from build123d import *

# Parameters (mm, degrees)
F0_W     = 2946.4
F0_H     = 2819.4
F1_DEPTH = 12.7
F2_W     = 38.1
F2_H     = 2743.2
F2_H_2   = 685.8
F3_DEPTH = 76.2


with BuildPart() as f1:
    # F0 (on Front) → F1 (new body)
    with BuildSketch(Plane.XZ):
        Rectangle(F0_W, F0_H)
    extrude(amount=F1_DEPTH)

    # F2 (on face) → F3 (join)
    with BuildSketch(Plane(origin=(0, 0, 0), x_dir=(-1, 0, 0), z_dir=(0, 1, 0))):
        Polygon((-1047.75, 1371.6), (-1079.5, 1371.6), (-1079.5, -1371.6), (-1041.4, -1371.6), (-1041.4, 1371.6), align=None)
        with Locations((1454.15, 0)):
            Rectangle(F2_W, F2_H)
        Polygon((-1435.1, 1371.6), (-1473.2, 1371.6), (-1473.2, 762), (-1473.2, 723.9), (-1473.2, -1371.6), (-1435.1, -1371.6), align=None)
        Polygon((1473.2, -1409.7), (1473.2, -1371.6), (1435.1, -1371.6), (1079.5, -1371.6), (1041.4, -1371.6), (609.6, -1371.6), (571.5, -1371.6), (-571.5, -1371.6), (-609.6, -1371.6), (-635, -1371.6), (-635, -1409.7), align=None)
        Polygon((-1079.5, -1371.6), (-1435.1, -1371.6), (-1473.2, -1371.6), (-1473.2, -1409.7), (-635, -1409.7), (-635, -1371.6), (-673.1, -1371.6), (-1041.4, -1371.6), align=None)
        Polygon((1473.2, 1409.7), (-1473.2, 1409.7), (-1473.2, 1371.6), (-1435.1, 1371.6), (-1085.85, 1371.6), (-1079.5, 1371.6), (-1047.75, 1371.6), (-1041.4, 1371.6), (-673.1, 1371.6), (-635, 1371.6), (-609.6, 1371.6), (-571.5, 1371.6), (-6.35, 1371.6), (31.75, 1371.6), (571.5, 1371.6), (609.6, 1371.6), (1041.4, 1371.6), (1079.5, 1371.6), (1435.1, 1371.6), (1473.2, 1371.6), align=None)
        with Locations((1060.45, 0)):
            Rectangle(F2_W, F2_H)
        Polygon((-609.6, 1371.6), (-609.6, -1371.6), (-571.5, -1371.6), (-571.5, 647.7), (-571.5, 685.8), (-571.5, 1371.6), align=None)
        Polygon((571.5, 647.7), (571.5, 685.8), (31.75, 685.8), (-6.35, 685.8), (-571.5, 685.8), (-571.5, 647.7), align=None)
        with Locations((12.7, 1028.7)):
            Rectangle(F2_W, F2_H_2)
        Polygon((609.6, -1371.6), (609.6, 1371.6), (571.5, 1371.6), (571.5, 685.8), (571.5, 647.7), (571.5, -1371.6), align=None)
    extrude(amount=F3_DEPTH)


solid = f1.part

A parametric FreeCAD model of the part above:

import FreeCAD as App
import Part
import Sketcher
from FreeCAD import Vector
Q = App.Units.Quantity


def add_polygon(sketch, points):
    """Adds a closed chain of lines whose ends are joined by coincident constraints."""
    first, n = sketch.GeometryCount, len(points)
    for a, b in zip(points, points[1:] + points[:1]):
        sketch.addGeometry(Part.LineSegment(App.Vector(*a, 0), App.Vector(*b, 0)), False)
    for i in range(n):
        sketch.addConstraint(Sketcher.Constraint("Coincident", first + i, 2, first + (i + 1) % n, 1))

doc = App.newDocument("Part")
params = doc.addObject("Spreadsheet::Sheet", "Params")
for row, (alias, value) in enumerate([
    ("sketch1_width", "116 in"),
    ("sketch1_height", "111 in"),
    ("pad1_length", "0.5 in"),
    ("sketch2_width", "116 in"),
    ("sketch2_width2", "14 in"),
    ("sketch2_width3", "17 in"),
    ("sketch2_width4", "45 in"),
    ("sketch2_height", "111 in"),
    ("pad2_length", "3 in"),
], start=1):
    params.set(f"A{row}", alias)
    params.set(f"B{row}", "=" + value)
    params.setAlias(f"B{row}", alias)

body = doc.addObject("PartDesign::Body", "Body")

sketch1 = body.newObject("Sketcher::SketchObject", "Sketch")
sketch1.AttachmentSupport = (doc.getObject("XZ_Plane"), [""])
sketch1.MapMode = "FlatFace"
add_polygon(sketch1, [(-1473.2, 1409.7), (-1473.2, -1409.7), (1473.2, -1409.7), (1473.2, 1409.7)])
sketch1.addConstraint([
    Sketcher.Constraint("Vertical", 0),
    Sketcher.Constraint("Horizontal", 1),
    Sketcher.Constraint("Vertical", 2),
    Sketcher.Constraint("Horizontal", 3),
    Sketcher.Constraint("Symmetric", 0, 2, 2, 2, -1, 1),
    Sketcher.Constraint("DistanceX", 1, 1, 1, 2, Q("116 in")),
    Sketcher.Constraint("DistanceY", 0, 2, 0, 1, Q("111 in")),
])
sketch1.setExpression("Constraints[9]", "Params.sketch1_width")
sketch1.setExpression("Constraints[10]", "Params.sketch1_height")
pad1 = body.newObject("PartDesign::Pad", "Pad")
pad1.Profile = sketch1
pad1.setExpression("Length", "Params.pad1_length")

sketch2 = body.newObject("Sketcher::SketchObject", "Sketch001")
sketch2.AttachmentSupport = (doc.getObject("XZ_Plane"), [""])
sketch2.MapMode = "FlatFace"
add_polygon(sketch2, [(1473.2, -1409.7), (-1473.2, -1409.7), (-1473.2, 1409.7), (1473.2, 1409.7)])
add_polygon(sketch2, [(1079.5, 1371.6), (1079.5, -1371.6), (1435.1, -1371.6), (1435.1, 1371.6)])
add_polygon(sketch2, [(-1435.1, 1371.6), (-1435.1, -1371.6), (-1079.5, -1371.6), (-1079.5, 1371.6)])
add_polygon(sketch2, [(-1041.4, -1371.6), (-609.6, -1371.6), (-609.6, 1371.6), (-1041.4, 1371.6)])
add_polygon(sketch2, [(-571.5, -1371.6), (571.5, -1371.6), (571.5, 647.7), (-571.5, 647.7)])
add_polygon(sketch2, [(-571.5, 685.8), (-31.75, 685.8), (-31.75, 1371.6), (-571.5, 1371.6)])
add_polygon(sketch2, [(6.35, 685.8), (571.5, 685.8), (571.5, 1371.6), (6.35, 1371.6)])
add_polygon(sketch2, [(609.6, -1371.6), (1041.4, -1371.6), (1041.4, 1371.6), (609.6, 1371.6)])
sketch2.addConstraint([
    Sketcher.Constraint("Horizontal", 0),
    Sketcher.Constraint("Vertical", 1),
    Sketcher.Constraint("Horizontal", 2),
    Sketcher.Constraint("Vertical", 3),
    Sketcher.Constraint("Vertical", 4),
    Sketcher.Constraint("Horizontal", 5),
    Sketcher.Constraint("Vertical", 6),
    Sketcher.Constraint("Horizontal", 7),
    Sketcher.Constraint("Vertical", 8),
    Sketcher.Constraint("Horizontal", 9),
    Sketcher.Constraint("Vertical", 10),
    Sketcher.Constraint("Horizontal", 11),
    Sketcher.Constraint("Horizontal", 12),
    Sketcher.Constraint("Vertical", 13),
    Sketcher.Constraint("Horizontal", 14),
    Sketcher.Constraint("Vertical", 15),
    Sketcher.Constraint("Horizontal", 16),
    Sketcher.Constraint("Vertical", 17),
    Sketcher.Constraint("Horizontal", 18),
    Sketcher.Constraint("Vertical", 19),
    Sketcher.Constraint("Horizontal", 20),
    Sketcher.Constraint("Vertical", 21),
    Sketcher.Constraint("Horizontal", 22),
    Sketcher.Constraint("Vertical", 23),
    Sketcher.Constraint("Horizontal", 24),
    Sketcher.Constraint("Vertical", 25),
    Sketcher.Constraint("Horizontal", 26),
    Sketcher.Constraint("Vertical", 27),
    Sketcher.Constraint("Horizontal", 28),
    Sketcher.Constraint("Vertical", 29),
    Sketcher.Constraint("Horizontal", 30),
    Sketcher.Constraint("Vertical", 31),
    Sketcher.Constraint("Symmetric", 0, 2, 2, 2, -1, 1),
    Sketcher.Constraint("Symmetric", 6, 2, 8, 2, -1, 1),
    Sketcher.Constraint("Symmetric", 4, 2, 10, 2, -1, 1),
    Sketcher.Constraint("Symmetric", 16, 2, 22, 2, -1, 1),
    Sketcher.Constraint("Symmetric", 19, 2, 25, 2, -1, 1),
    Sketcher.Constraint("Symmetric", 14, 2, 28, 2, -1, 1),
    Sketcher.Constraint("Symmetric", 12, 2, 30, 2, -1, 1),
    Sketcher.Constraint("Symmetric", 23, 2, 24, 2, -2),
    Sketcher.Constraint("Horizontal", 5, 2, 8, 2),
    Sketcher.Constraint("Horizontal", 9, 2, 12, 2),
    Sketcher.Constraint("Horizontal", 11, 2, 13, 2),
    Sketcher.Constraint("Horizontal", 15, 2, 16, 2),
    Sketcher.Constraint("DistanceX", 0, 2, 0, 1, Q("116 in")),
    Sketcher.Constraint("DistanceX", 5, 1, 5, 2, Q("14 in")),
    Sketcher.Constraint("DistanceX", 12, 1, 12, 2, Q("17 in")),
    Sketcher.Constraint("DistanceX", 16, 1, 16, 2, Q("45 in")),
    Sketcher.Constraint("DistanceY", 1, 1, 1, 2, Q("111 in")),
    Sketcher.Constraint("DistanceY", 4, 2, 4, 1, Q("108 in")),
    Sketcher.Constraint("DistanceY", 21, 1, 21, 2, Q("27 in")),
    Sketcher.Constraint("DistanceY", 17, 1, 17, 2, Q("79.5 in")),
    Sketcher.Constraint("DistanceX", 12, 2, -1, 1, Q("24 in")),
    Sketcher.Constraint("DistanceX", 8, 2, 4, 2, Q("99 in")),
    Sketcher.Constraint("DistanceX", 20, 1, 20, 2, Q("21.25 in")),
    Sketcher.Constraint("DistanceX", 24, 1, 24, 2, Q("22.25 in")),
])
sketch2.setExpression("Constraints[76]", "Params.sketch2_width")
sketch2.setExpression("Constraints[77]", "Params.sketch2_width2")
sketch2.setExpression("Constraints[78]", "Params.sketch2_width3")
sketch2.setExpression("Constraints[79]", "Params.sketch2_width4")
sketch2.setExpression("Constraints[80]", "Params.sketch2_height")
pad2 = body.newObject("PartDesign::Pad", "Pad001")
pad2.Profile = sketch2
pad2.setExpression("Length", "Params.pad2_length")
pad2.Reversed = True

doc.recompute()
